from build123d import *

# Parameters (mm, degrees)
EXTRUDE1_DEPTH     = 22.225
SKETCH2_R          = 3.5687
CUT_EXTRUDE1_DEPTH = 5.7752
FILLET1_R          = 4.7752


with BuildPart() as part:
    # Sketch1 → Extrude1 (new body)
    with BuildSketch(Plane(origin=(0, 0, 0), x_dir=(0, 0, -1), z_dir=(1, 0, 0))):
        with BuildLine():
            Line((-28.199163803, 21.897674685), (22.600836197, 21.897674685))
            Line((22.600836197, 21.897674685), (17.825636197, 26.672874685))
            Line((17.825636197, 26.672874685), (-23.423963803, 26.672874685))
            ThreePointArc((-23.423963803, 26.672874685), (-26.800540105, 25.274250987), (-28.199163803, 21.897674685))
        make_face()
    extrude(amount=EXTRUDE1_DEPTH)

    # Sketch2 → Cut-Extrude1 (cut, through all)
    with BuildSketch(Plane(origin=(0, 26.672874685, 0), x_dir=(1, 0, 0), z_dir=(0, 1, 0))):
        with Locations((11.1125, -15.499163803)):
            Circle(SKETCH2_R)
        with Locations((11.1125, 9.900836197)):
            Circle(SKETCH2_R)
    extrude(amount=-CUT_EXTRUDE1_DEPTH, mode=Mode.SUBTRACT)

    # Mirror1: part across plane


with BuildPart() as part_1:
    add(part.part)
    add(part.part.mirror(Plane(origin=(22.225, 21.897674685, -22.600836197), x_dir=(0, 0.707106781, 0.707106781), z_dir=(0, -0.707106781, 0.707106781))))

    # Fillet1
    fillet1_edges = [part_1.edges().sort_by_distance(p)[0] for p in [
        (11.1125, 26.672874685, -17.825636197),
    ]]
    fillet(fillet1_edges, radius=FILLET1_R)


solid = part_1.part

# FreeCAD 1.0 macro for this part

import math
import FreeCAD as App
import Part
import Sketcher

V = App.Vector
Q = App.Units.Quantity


def edges_at(feature, points):
    """Names of the edges that pass closest to the given points."""
    edges = feature.Shape.Edges
    near = lambda p: min(range(len(edges)), key=lambda i: edges[i].distToShape(Part.Vertex(*p))[0])
    return sorted({f"Edge{near(p) + 1}" for p in points})

doc = App.newDocument("Part")
body = doc.addObject("PartDesign::Body", "Body")

# Sketch on YZ plane
sketch1 = body.newObject("Sketcher::SketchObject", "Sketch")
sketch1.AttachmentSupport = (doc.getObject("YZ_Plane"), [""])
sketch1.MapMode = "FlatFace"
sketch1.addGeometry([
    Part.LineSegment(V(21.897675, 28.199164, 0), V(21.897675, -22.600836, 0)),
    Part.LineSegment(V(21.897675, -22.600836, 0), V(26.672875, -17.825636, 0)),
    Part.LineSegment(V(26.672875, -17.825636, 0), V(26.672875, 23.423964, 0)),
    Part.ArcOfCircle(Part.Circle(V(21.897675, 23.423964, 0), V(0, 0, 1), 4.7752), math.radians(0), math.radians(90)),
], False)
sketch1.addConstraint([
    Sketcher.Constraint("Coincident", 0, 2, 1, 1),
    Sketcher.Constraint("Coincident", 1, 2, 2, 1),
    Sketcher.Constraint("Tangent", 2, 2, 3, 1),
    Sketcher.Constraint("Coincident", 3, 2, 0, 1),
    Sketcher.Constraint("Vertical", 0),
    Sketcher.Constraint("Vertical", 2),
    Sketcher.Constraint("Vertical", 3, 3, 0, 2),
    Sketcher.Constraint("DistanceY", 0, 2, 0, 1, Q("2 in")),
    Sketcher.Constraint("Angle", 1, Q("45 deg")),
    Sketcher.Constraint("Radius", 3, Q("0.188 in")),
    Sketcher.Constraint("DistanceX", -1, 1, 3, 3, Q("21.897675 mm")),
    Sketcher.Constraint("DistanceY", -1, 1, 3, 3, Q("23.423964 mm")),
])
pad1 = body.newObject("PartDesign::Pad", "Pad")
pad1.Profile = sketch1
pad1.Length = Q("0.875 in")

# Sketch on XZ plane
sketch2 = body.newObject("Sketcher::SketchObject", "Sketch001")
sketch2.AttachmentSupport = (doc.getObject("XZ_Plane"), [""])
sketch2.MapMode = "FlatFace"
sketch2.AttachmentOffset = App.Placement(V(0, 0, -26.672875), App.Rotation())
sketch2.addGeometry([
    Part.Circle(V(11.1125, 15.499164, 0), V(0, 0, 1), 3.5687),
    Part.Circle(V(11.1125, -9.900836, 0), V(0, 0, 1), 3.5687),
], False)
sketch2.addConstraint([
    Sketcher.Constraint("Equal", 0, 1),
    Sketcher.Constraint("Vertical", 0, 3, 1, 3),
    Sketcher.Constraint("Diameter", 0, Q("0.281 in")),
    Sketcher.Constraint("DistanceY", 1, 3, 0, 3, Q("1 in")),
    Sketcher.Constraint("DistanceX", -1, 1, 0, 3, Q("0.4375 in")),
    Sketcher.Constraint("DistanceY", -1, 1, 0, 3, Q("15.499164 mm")),
])
pocket1 = body.newObject("PartDesign::Pocket", "Pocket")
pocket1.Profile = sketch2
pocket1.Type = "ThroughAll"
pocket1.Reversed = True
body2 = doc.addObject("PartDesign::Body", "Body001")
doc.recompute()

body2.BaseFeature = body
doc.recompute()

mirroring = doc.addObject("Part::Mirroring", "Mirroring")
mirroring.Source = body
mirroring.Base = V(22.225, 21.897675, -22.600836)
mirroring.Normal = V(0, -0.707106781, 0.707106781)
body3 = doc.addObject("PartDesign::Body", "Body002")
body3.BaseFeature = mirroring
boolean = body2.newObject("PartDesign::Boolean", "Boolean")
boolean.Type = "Fuse"
boolean.addObjects([body3])
doc.recompute()

fillet = body2.newObject("PartDesign::Fillet", "Fillet")
fillet.Base = (boolean, edges_at(boolean, [(11.113, 26.673, -17.826)]))
fillet.Radius = Q("0.188 in")
mirroring.Visibility = False

doc.recompute()
